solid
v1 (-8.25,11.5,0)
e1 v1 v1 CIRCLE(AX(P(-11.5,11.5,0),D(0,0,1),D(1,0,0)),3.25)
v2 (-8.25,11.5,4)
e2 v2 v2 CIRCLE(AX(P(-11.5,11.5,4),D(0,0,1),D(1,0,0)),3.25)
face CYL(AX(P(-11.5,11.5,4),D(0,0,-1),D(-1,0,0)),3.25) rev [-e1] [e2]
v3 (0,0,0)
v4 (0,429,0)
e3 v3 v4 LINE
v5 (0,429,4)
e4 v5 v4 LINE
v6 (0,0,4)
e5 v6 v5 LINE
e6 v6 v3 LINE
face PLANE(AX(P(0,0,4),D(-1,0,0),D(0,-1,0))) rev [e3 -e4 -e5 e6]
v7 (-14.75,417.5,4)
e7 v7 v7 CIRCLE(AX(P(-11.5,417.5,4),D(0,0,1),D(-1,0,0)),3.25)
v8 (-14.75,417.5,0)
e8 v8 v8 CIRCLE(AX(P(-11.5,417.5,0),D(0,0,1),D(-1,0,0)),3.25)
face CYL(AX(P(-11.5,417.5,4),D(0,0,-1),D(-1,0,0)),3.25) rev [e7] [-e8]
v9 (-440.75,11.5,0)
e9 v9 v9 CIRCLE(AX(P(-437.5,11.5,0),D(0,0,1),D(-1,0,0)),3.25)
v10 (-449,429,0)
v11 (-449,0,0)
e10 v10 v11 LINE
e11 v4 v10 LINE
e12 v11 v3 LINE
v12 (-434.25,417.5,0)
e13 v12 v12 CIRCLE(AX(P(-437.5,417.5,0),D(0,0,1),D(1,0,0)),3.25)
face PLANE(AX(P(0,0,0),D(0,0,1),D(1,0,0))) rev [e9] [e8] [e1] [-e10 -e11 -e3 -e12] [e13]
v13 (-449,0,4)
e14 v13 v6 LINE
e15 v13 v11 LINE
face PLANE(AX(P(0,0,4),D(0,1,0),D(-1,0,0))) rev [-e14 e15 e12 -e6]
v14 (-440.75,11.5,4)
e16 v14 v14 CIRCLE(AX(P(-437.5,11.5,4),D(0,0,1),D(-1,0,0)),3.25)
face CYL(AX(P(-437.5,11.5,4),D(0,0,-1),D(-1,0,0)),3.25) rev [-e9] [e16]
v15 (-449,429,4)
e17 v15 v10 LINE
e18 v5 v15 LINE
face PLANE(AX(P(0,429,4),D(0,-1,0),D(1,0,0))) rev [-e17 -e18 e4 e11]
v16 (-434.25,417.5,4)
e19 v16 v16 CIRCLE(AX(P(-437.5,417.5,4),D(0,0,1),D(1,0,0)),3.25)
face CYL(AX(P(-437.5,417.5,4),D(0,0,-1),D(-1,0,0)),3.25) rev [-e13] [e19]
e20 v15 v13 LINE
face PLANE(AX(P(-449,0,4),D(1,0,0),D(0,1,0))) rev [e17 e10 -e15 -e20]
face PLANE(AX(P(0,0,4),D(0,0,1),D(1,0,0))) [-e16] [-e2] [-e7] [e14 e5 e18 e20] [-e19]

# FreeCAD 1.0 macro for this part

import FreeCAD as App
import Part
import Sketcher

V = App.Vector
Q = App.Units.Quantity

doc = App.newDocument("Part")
params = doc.addObject("Spreadsheet::Sheet", "Params")
for row, (alias, value) in enumerate([
    ("sketch1_diameter", "6.5 mm"),
    ("sketch1_width", "449 mm"),
    ("sketch1_height", "429 mm"),
    ("pad1_length", "4 mm"),
], start=1):
    params.set(f"A{row}", alias)
    params.set(f"B{row}", "=" + value)
    params.setAlias(f"B{row}", alias)

body = doc.addObject("PartDesign::Body", "Body")

# Sketch on XY plane
sketch1 = body.newObject("Sketcher::SketchObject", "Sketch")
sketch1.AttachmentSupport = (doc.getObject("XY_Plane"), [""])
sketch1.MapMode = "FlatFace"
sketch1.addGeometry(Part.LineSegment(V(-449, 429, 0), V(-449, 0, 0)), False)
sketch1.addGeometry(Part.LineSegment(V(-449, 0, 0), V(0, 0, 0)), False)
sketch1.addGeometry(Part.LineSegment(V(0, 0, 0), V(0, 429, 0)), False)
sketch1.addGeometry(Part.LineSegment(V(0, 429, 0), V(-449, 429, 0)), False)
sketch1.addGeometry(Part.Circle(V(-437.5, 11.5, 0), V(0, 0, 1), 3.2), False)
sketch1.addGeometry(Part.Circle(V(-11.5, 11.5, 0), V(0, 0, 1), 3.2), False)
sketch1.addGeometry(Part.Circle(V(-437.5, 417.5, 0), V(0, 0, 1), 3.2), False)
sketch1.addGeometry(Part.Circle(V(-11.5, 417.5, 0), V(0, 0, 1), 3.2), False)
sketch1.addConstraint(Sketcher.Constraint("Coincident", 0, 2, 1, 1))
sketch1.addConstraint(Sketcher.Constraint("Coincident", 1, 2, 2, 1))
sketch1.addConstraint(Sketcher.Constraint("Coincident", 2, 2, 3, 1))
sketch1.addConstraint(Sketcher.Constraint("Coincident", 3, 2, 0, 1))
sketch1.addConstraint(Sketcher.Constraint("Vertical", 0))
sketch1.addConstraint(Sketcher.Constraint("Horizontal", 1))
sketch1.addConstraint(Sketcher.Constraint("Vertical", 2))
sketch1.addConstraint(Sketcher.Constraint("Horizontal", 3))
sketch1.addConstraint(Sketcher.Constraint("Coincident", 1, 2, -1, 1))
sketch1.addConstraint(Sketcher.Constraint("Equal", 4, 5))
sketch1.addConstraint(Sketcher.Constraint("Equal", 5, 6))
sketch1.addConstraint(Sketcher.Constraint("Equal", 6, 7))
sketch1.addConstraint(Sketcher.Constraint("Horizontal", 4, 3, 5, 3))
sketch1.addConstraint(Sketcher.Constraint("Horizontal", 6, 3, 7, 3))
sketch1.addConstraint(Sketcher.Constraint("Vertical", 4, 3, 6, 3))
sketch1.addConstraint(Sketcher.Constraint("Vertical", 5, 3, 7, 3))
sketch1.addConstraint(Sketcher.Constraint("Diameter", 4, Q("6.5 mm")))
sketch1.addConstraint(Sketcher.Constraint("DistanceX", 1, 1, 1, 2, Q("449 mm")))
sketch1.addConstraint(Sketcher.Constraint("DistanceY", 0, 2, 0, 1, Q("429 mm")))
sketch1.addConstraint(Sketcher.Constraint("DistanceX", 4, 3, 5, 3, Q("426 mm")))
sketch1.addConstraint(Sketcher.Constraint("DistanceY", 4, 3, 6, 3, Q("406 mm")))
sketch1.addConstraint(Sketcher.Constraint("DistanceX", 4, 3, -1, 1, Q("437.5 mm")))
sketch1.addConstraint(Sketcher.Constraint("DistanceY", -1, 1, 4, 3, Q("11.5 mm")))
sketch1.setExpression("Constraints[16]", "Params.sketch1_diameter")
sketch1.setExpression("Constraints[17]", "Params.sketch1_width")
sketch1.setExpression("Constraints[18]", "Params.sketch1_height")
pad1 = body.newObject("PartDesign::Pad", "Pad")
pad1.Profile = sketch1
pad1.setExpression("Length", "Params.pad1_length")

doc.recompute()
